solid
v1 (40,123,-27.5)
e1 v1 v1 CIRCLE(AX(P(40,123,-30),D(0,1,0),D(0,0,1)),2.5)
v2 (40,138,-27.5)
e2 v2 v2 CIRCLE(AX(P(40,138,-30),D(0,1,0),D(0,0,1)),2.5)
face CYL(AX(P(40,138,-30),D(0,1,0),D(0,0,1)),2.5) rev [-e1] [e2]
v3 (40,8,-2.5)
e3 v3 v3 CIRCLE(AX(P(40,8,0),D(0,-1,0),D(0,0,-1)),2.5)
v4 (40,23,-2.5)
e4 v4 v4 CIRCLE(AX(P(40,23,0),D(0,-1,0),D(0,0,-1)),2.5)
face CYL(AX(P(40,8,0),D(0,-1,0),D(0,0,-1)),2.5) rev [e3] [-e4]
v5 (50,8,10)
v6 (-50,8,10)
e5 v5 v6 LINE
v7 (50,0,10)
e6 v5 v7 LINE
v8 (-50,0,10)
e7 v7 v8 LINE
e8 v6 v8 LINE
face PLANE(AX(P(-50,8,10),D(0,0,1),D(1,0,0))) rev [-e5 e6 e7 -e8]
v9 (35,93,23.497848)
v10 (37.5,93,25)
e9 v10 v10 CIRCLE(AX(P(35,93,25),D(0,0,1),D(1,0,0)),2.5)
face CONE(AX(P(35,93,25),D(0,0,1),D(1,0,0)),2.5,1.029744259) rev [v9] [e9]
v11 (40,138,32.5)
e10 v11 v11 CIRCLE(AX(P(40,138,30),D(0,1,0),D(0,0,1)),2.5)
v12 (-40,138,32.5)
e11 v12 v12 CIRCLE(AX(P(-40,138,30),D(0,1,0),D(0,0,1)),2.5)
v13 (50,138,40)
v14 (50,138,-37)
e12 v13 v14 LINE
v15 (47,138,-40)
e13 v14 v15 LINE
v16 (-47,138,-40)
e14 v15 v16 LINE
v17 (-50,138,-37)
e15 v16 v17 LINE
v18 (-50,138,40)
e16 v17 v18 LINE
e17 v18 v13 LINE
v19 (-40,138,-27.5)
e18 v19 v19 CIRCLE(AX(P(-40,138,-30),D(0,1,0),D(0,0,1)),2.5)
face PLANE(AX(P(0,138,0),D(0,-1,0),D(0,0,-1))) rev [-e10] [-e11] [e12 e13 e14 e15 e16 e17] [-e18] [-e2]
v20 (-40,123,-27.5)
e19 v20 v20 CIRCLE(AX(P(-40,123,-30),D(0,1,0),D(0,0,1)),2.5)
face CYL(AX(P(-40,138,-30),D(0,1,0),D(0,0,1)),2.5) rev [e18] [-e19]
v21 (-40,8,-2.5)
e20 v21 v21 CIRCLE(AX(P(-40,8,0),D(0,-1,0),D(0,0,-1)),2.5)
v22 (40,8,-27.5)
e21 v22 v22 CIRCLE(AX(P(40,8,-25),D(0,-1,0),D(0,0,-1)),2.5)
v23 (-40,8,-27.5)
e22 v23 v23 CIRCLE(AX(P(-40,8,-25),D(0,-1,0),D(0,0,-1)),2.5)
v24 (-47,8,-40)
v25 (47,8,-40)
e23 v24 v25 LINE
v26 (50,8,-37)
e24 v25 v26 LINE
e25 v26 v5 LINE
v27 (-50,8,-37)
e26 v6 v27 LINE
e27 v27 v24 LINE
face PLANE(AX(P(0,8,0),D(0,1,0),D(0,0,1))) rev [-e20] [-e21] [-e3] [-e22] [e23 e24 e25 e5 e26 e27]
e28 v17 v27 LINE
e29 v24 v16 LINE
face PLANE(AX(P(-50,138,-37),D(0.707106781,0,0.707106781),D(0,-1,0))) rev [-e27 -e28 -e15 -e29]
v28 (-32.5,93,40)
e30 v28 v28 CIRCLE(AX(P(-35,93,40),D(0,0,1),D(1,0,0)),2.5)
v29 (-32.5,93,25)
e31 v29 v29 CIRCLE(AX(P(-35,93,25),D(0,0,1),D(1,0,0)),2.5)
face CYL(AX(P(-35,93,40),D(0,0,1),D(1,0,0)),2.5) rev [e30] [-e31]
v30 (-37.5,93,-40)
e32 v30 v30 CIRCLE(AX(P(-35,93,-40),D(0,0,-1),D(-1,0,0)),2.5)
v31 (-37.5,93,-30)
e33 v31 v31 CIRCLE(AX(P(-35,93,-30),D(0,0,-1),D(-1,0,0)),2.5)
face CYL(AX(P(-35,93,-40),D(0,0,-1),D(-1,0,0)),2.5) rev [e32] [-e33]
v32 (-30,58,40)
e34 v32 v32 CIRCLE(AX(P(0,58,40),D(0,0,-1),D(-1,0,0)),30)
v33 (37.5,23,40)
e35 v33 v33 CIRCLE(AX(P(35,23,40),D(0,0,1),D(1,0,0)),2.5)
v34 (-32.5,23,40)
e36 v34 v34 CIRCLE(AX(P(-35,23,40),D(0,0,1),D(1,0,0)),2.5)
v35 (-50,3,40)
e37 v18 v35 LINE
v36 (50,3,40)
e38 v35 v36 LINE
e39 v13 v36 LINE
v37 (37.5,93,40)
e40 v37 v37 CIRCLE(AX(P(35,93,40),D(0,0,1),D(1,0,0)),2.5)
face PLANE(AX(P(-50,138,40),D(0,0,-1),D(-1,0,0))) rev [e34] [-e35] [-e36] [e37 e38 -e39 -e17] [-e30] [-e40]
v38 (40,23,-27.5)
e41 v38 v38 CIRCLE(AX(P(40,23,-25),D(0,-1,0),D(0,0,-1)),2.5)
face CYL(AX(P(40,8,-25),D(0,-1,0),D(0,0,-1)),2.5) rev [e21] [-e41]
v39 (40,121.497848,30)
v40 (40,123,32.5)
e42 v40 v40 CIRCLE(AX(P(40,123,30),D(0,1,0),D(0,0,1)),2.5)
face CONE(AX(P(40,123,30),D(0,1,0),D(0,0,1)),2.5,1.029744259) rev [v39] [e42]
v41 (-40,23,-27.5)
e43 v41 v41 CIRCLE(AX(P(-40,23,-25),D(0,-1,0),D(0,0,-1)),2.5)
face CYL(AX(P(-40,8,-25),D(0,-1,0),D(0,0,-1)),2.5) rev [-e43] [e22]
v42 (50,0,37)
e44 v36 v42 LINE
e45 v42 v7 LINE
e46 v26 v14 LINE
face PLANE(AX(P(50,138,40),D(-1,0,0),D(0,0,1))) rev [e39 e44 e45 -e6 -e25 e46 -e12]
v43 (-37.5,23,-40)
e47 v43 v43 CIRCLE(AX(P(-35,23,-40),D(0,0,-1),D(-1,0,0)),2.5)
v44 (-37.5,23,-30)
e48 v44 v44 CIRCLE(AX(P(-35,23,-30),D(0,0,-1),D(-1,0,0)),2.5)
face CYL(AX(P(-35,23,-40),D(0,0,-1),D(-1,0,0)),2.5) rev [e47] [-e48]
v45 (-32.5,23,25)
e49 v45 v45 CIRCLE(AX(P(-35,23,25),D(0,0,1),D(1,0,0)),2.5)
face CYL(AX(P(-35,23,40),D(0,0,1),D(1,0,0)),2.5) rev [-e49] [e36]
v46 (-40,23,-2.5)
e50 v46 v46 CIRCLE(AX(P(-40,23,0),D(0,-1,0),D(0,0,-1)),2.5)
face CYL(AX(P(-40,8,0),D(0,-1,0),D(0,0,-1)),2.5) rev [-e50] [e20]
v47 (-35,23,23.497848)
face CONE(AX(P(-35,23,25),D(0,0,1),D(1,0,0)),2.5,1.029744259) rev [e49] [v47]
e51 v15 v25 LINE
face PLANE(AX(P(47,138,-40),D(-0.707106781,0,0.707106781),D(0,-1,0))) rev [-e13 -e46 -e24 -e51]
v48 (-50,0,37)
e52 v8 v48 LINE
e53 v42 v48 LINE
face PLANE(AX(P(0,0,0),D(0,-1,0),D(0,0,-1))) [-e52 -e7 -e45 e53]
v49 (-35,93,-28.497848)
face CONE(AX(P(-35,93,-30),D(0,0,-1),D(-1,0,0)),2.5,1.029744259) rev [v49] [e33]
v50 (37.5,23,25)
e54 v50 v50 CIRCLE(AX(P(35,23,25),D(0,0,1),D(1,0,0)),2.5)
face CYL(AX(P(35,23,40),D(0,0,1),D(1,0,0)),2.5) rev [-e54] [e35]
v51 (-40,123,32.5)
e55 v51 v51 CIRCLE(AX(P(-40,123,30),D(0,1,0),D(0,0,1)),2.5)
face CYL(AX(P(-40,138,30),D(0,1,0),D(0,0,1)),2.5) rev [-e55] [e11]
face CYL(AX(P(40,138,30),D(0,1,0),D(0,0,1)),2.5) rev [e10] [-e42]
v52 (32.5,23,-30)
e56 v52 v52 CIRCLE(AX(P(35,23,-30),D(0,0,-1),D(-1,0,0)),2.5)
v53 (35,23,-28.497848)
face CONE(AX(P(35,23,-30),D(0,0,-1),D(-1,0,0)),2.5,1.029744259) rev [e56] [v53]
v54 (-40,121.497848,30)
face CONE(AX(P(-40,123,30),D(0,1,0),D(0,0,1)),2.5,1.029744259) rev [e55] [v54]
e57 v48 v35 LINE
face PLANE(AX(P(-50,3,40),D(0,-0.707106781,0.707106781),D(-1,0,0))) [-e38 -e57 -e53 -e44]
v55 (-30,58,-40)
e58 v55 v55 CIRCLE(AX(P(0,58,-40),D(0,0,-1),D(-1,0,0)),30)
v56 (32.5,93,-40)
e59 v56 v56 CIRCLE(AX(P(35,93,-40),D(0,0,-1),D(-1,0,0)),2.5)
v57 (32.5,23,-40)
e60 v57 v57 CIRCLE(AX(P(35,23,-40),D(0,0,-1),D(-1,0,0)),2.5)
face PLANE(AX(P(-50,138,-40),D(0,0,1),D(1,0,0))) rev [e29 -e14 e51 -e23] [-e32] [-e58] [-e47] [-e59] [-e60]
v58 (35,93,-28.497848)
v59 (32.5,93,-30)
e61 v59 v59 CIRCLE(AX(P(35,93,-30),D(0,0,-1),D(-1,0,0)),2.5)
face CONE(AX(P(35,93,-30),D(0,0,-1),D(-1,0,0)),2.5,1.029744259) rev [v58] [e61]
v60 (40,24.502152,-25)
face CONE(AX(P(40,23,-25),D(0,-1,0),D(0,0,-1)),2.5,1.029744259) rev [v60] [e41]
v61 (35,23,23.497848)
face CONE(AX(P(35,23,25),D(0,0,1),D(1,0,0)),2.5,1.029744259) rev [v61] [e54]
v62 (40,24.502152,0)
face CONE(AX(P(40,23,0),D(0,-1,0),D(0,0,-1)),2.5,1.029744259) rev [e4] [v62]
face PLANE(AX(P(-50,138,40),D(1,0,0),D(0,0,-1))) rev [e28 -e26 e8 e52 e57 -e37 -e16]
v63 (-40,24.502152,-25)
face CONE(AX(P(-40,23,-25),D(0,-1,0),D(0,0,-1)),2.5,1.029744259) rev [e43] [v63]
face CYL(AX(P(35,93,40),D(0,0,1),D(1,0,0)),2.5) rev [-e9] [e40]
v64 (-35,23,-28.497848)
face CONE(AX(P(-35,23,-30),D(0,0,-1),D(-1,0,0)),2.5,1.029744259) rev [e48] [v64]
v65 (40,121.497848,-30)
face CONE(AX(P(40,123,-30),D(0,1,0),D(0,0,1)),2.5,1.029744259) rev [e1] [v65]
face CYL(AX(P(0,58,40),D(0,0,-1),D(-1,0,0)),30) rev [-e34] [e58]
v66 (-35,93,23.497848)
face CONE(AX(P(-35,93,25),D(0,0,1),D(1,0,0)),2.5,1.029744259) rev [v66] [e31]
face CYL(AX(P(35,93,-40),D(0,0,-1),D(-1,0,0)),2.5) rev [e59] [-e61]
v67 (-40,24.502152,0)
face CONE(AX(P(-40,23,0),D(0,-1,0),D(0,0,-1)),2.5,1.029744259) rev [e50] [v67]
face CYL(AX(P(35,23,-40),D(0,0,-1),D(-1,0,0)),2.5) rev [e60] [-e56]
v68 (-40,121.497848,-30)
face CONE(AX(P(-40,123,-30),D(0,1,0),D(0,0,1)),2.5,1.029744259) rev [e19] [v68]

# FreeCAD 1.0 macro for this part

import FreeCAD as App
import Part
import Sketcher
Q = App.Units.Quantity


def edges_at(feature, points):
    """Names of the edges that pass closest to the given points."""
    edges = feature.Shape.Edges
    near = lambda p: min(range(len(edges)), key=lambda i: edges[i].distToShape(Part.Vertex(*p))[0])
    return sorted({f"Edge{near(p) + 1}" for p in points})


def add_polygon(sketch, points):
    """Adds a closed chain of lines whose ends are joined by coincident constraints."""
    first, n = sketch.GeometryCount, len(points)
    for a, b in zip(points, points[1:] + points[:1]):
        sketch.addGeometry(Part.LineSegment(App.Vector(*a, 0), App.Vector(*b, 0)), False)
    for i in range(n):
        sketch.addConstraint(Sketcher.Constraint("Coincident", first + i, 2, first + (i + 1) % n, 1))

doc = App.newDocument("Part")
params = doc.addObject("Spreadsheet::Sheet", "Params")
for row, (alias, value) in enumerate([
    ("sketch1_width", "100 mm"),
    ("sketch1_height", "80 mm"),
    ("pad1_length", "138 mm"),
    ("sketch2_width", "100 mm"),
    ("sketch2_height", "50 mm"),
    ("pocket1_length", "8 mm"),
    ("sketch3_diameter", "5 mm"),
    ("hole_diameter", "5 mm"),
    ("hole_depth", "15 mm"),
    ("sketch4_diameter", "60 mm"),
    ("sketch5_diameter", "5 mm"),
    ("hole2_diameter", "5 mm"),
    ("hole2_depth", "15 mm"),
    ("sketch6_diameter", "5 mm"),
    ("hole3_diameter", "5 mm"),
    ("hole3_depth", "10 mm"),
    ("sketch7_diameter", "5 mm"),
    ("hole4_diameter", "5 mm"),
    ("hole4_depth", "15 mm"),
    ("chamfer_size", "3 mm"),
], start=1):
    params.set(f"A{row}", alias)
    params.set(f"B{row}", "=" + value)
    params.setAlias(f"B{row}", alias)

body = doc.addObject("PartDesign::Body", "Body")

sketch1 = body.newObject("Sketcher::SketchObject", "Sketch")
sketch1.AttachmentSupport = (doc.getObject("XZ_Plane"), [""])
sketch1.MapMode = "FlatFace"
add_polygon(sketch1, [(-50, -40), (-50, 40), (50, 40), (50, -40)])
sketch1.addConstraint([
    Sketcher.Constraint("Vertical", 0),
    Sketcher.Constraint("Horizontal", 1),
    Sketcher.Constraint("Vertical", 2),
    Sketcher.Constraint("Horizontal", 3),
    Sketcher.Constraint("Symmetric", 0, 2, 2, 2, -1, 1),
    Sketcher.Constraint("DistanceX", 1, 1, 1, 2, Q("100 mm")),
    Sketcher.Constraint("DistanceY", 0, 1, 0, 2, Q("80 mm")),
])
sketch1.setExpression("Constraints[9]", "Params.sketch1_width")
sketch1.setExpression("Constraints[10]", "Params.sketch1_height")
pad1 = body.newObject("PartDesign::Pad", "Pad")
pad1.Profile = sketch1
pad1.setExpression("Length", "Params.pad1_length")
pad1.Reversed = True

sketch2 = body.newObject("Sketcher::SketchObject", "Sketch001")
sketch2.AttachmentSupport = (doc.getObject("XZ_Plane"), [""])
sketch2.MapMode = "FlatFace"
add_polygon(sketch2, [(-50, 10), (-50, -40), (50, -40), (50, 10)])
sketch2.addConstraint([
    Sketcher.Constraint("Vertical", 0),
    Sketcher.Constraint("Horizontal", 1),
    Sketcher.Constraint("Vertical", 2),
    Sketcher.Constraint("Horizontal", 3),
    Sketcher.Constraint("DistanceX", 1, 1, 1, 2, Q("100 mm")),
    Sketcher.Constraint("DistanceY", 0, 2, 0, 1, Q("50 mm")),
    Sketcher.Constraint("DistanceX", 0, 2, -1, 1, Q("50 mm")),
    Sketcher.Constraint("DistanceY", 0, 2, -1, 1, Q("40 mm")),
])
sketch2.setExpression("Constraints[8]", "Params.sketch2_width")
sketch2.setExpression("Constraints[9]", "Params.sketch2_height")
pocket1 = body.newObject("PartDesign::Pocket", "Pocket")
pocket1.Profile = sketch2
pocket1.setExpression("Length", "Params.pocket1_length")

sketch3 = body.newObject("Sketcher::SketchObject", "Sketch002")
sketch3.AttachmentSupport = (doc.getObject("XZ_Plane"), [""])
sketch3.MapMode = "FlatFace"
sketch3.AttachmentOffset = App.Placement(App.Vector(0, 0, -8), App.Rotation())
sketch3.addGeometry([
    Part.Circle(App.Vector(40, -25, 0), App.Vector(0, 0, 1), 2.5),
    Part.Circle(App.Vector(40, 0, 0), App.Vector(0, 0, 1), 2.5),
    Part.Circle(App.Vector(-40, 0, 0), App.Vector(0, 0, 1), 2.5),
    Part.Circle(App.Vector(-40, -25, 0), App.Vector(0, 0, 1), 2.5),
], False)
sketch3.addConstraint([
    Sketcher.Constraint("Equal", 0, 1),
    Sketcher.Constraint("Equal", 1, 2),
    Sketcher.Constraint("Equal", 2, 3),
    Sketcher.Constraint("Symmetric", 1, 3, 2, 3, -1, 1),
    Sketcher.Constraint("Symmetric", 0, 3, 3, 3, -2),
    Sketcher.Constraint("PointOnObject", 1, 3, -1),
    Sketcher.Constraint("Vertical", 0, 3, 1, 3),
    Sketcher.Constraint("Diameter", 0, Q("5 mm")),
    Sketcher.Constraint("DistanceX", -1, 1, 0, 3, Q("40 mm")),
    Sketcher.Constraint("DistanceY", 0, 3, -1, 1, Q("25 mm")),
])
sketch3.setExpression("Constraints[7]", "Params.sketch3_diameter")
doc.recompute()
hole = body.newObject("PartDesign::Hole", "Hole")
hole.Profile = sketch3
hole.ThreadType = "None"
hole.setExpression("Diameter", "Params.hole_diameter")
hole.DepthType = "Dimension"
hole.setExpression("Depth", "Params.hole_depth")
hole.DrillPoint = "Angled"
hole.DrillPointAngle = 118

sketch4 = body.newObject("Sketcher::SketchObject", "Sketch003")
sketch4.AttachmentSupport = (doc.getObject("XY_Plane"), [""])
sketch4.MapMode = "FlatFace"
sketch4.AttachmentOffset = App.Placement(App.Vector(0, 0, -40), App.Rotation())
sketch4.addGeometry(Part.Circle(App.Vector(0, 58, 0), App.Vector(0, 0, 1), 30), False)
sketch4.addConstraint([
    Sketcher.Constraint("PointOnObject", 0, 3, -2),
    Sketcher.Constraint("Diameter", 0, Q("60 mm")),
    Sketcher.Constraint("DistanceY", -1, 1, 0, 3, Q("58 mm")),
])
sketch4.setExpression("Constraints[1]", "Params.sketch4_diameter")
pocket2 = body.newObject("PartDesign::Pocket", "Pocket001")
pocket2.Profile = sketch4
pocket2.Type = "ThroughAll"
pocket2.Reversed = True

sketch5 = body.newObject("Sketcher::SketchObject", "Sketch004")
sketch5.AttachmentSupport = (doc.getObject("XZ_Plane"), [""])
sketch5.MapMode = "FlatFace"
sketch5.AttachmentOffset = App.Placement(App.Vector(0, 0, -138), App.Rotation())
sketch5.addGeometry([
    Part.Circle(App.Vector(-40, -30, 0), App.Vector(0, 0, 1), 2.5),
    Part.Circle(App.Vector(-40, 30, 0), App.Vector(0, 0, 1), 2.5),
    Part.Circle(App.Vector(40, 30, 0), App.Vector(0, 0, 1), 2.5),
    Part.Circle(App.Vector(40, -30, 0), App.Vector(0, 0, 1), 2.5),
], False)
sketch5.addConstraint([
    Sketcher.Constraint("Equal", 0, 1),
    Sketcher.Constraint("Equal", 1, 2),
    Sketcher.Constraint("Equal", 2, 3),
    Sketcher.Constraint("Symmetric", 0, 3, 2, 3, -1, 1),
    Sketcher.Constraint("Symmetric", 1, 3, 3, 3, -1, 1),
    Sketcher.Constraint("Symmetric", 1, 3, 2, 3, -2),
    Sketcher.Constraint("Diameter", 0, Q("5 mm")),
    Sketcher.Constraint("DistanceX", 0, 3, -1, 1, Q("40 mm")),
    Sketcher.Constraint("DistanceY", 0, 3, -1, 1, Q("30 mm")),
])
sketch5.setExpression("Constraints[6]", "Params.sketch5_diameter")
doc.recompute()
hole2 = body.newObject("PartDesign::Hole", "Hole001")
hole2.Profile = sketch5
hole2.ThreadType = "None"
hole2.setExpression("Diameter", "Params.hole2_diameter")
hole2.DepthType = "Dimension"
hole2.setExpression("Depth", "Params.hole2_depth")
hole2.DrillPoint = "Angled"
hole2.DrillPointAngle = 118
hole2.Reversed = True

sketch6 = body.newObject("Sketcher::SketchObject", "Sketch005")
sketch6.AttachmentSupport = (doc.getObject("XY_Plane"), [""])
sketch6.MapMode = "FlatFace"
sketch6.AttachmentOffset = App.Placement(App.Vector(0, 0, -40), App.Rotation())
sketch6.addGeometry([
    Part.Circle(App.Vector(35, 23, 0), App.Vector(0, 0, 1), 2.5),
    Part.Circle(App.Vector(35, 93, 0), App.Vector(0, 0, 1), 2.5),
    Part.Circle(App.Vector(-35, 93, 0), App.Vector(0, 0, 1), 2.5),
    Part.Circle(App.Vector(-35, 23, 0), App.Vector(0, 0, 1), 2.5),
], False)
sketch6.addConstraint([
    Sketcher.Constraint("Equal", 0, 1),
    Sketcher.Constraint("Equal", 1, 2),
    Sketcher.Constraint("Equal", 2, 3),
    Sketcher.Constraint("Symmetric", 1, 3, 2, 3, -2),
    Sketcher.Constraint("Symmetric", 0, 3, 3, 3, -2),
    Sketcher.Constraint("Vertical", 0, 3, 1, 3),
    Sketcher.Constraint("Diameter", 0, Q("5 mm")),
    Sketcher.Constraint("DistanceX", -1, 1, 0, 3, Q("35 mm")),
    Sketcher.Constraint("DistanceY", -1, 1, 0, 3, Q("23 mm")),
    Sketcher.Constraint("DistanceY", -1, 1, 1, 3, Q("93 mm")),
])
sketch6.setExpression("Constraints[6]", "Params.sketch6_diameter")
doc.recompute()
hole3 = body.newObject("PartDesign::Hole", "Hole002")
hole3.Profile = sketch6
hole3.ThreadType = "None"
hole3.setExpression("Diameter", "Params.hole3_diameter")
hole3.DepthType = "Dimension"
hole3.setExpression("Depth", "Params.hole3_depth")
hole3.DrillPoint = "Angled"
hole3.DrillPointAngle = 118
hole3.Reversed = True

sketch7 = body.newObject("Sketcher::SketchObject", "Sketch006")
sketch7.AttachmentSupport = (doc.getObject("XY_Plane"), [""])
sketch7.MapMode = "FlatFace"
sketch7.AttachmentOffset = App.Placement(App.Vector(0, 0, 40), App.Rotation())
sketch7.addGeometry([
    Part.Circle(App.Vector(-35, 93, 0), App.Vector(0, 0, 1), 2.5),
    Part.Circle(App.Vector(35, 93, 0), App.Vector(0, 0, 1), 2.5),
    Part.Circle(App.Vector(35, 23, 0), App.Vector(0, 0, 1), 2.5),
    Part.Circle(App.Vector(-35, 23, 0), App.Vector(0, 0, 1), 2.5),
], False)
sketch7.addConstraint([
    Sketcher.Constraint("Equal", 0, 1),
    Sketcher.Constraint("Equal", 1, 2),
    Sketcher.Constraint("Equal", 2, 3),
    Sketcher.Constraint("Symmetric", 0, 3, 1, 3, -2),
    Sketcher.Constraint("Symmetric", 2, 3, 3, 3, -2),
    Sketcher.Constraint("Vertical", 1, 3, 2, 3),
    Sketcher.Constraint("Diameter", 0, Q("5 mm")),
    Sketcher.Constraint("DistanceX", 0, 3, -1, 1, Q("35 mm")),
    Sketcher.Constraint("DistanceY", -1, 1, 0, 3, Q("93 mm")),
    Sketcher.Constraint("DistanceY", -1, 1, 2, 3, Q("23 mm")),
])
sketch7.setExpression("Constraints[6]", "Params.sketch7_diameter")
doc.recompute()
hole4 = body.newObject("PartDesign::Hole", "Hole003")
hole4.Profile = sketch7
hole4.ThreadType = "None"
hole4.setExpression("Diameter", "Params.hole4_diameter")
hole4.DepthType = "Dimension"
hole4.setExpression("Depth", "Params.hole4_depth")
hole4.DrillPoint = "Angled"
hole4.DrillPointAngle = 118
doc.recompute()

chamfer = body.newObject("PartDesign::Chamfer", "Chamfer")
chamfer.Base = (hole4, edges_at(hole4, [(0, 0, 40), (-50, 73, -40), (50, 73, -40)]))
chamfer.setExpression("Size", "Params.chamfer_size")

doc.recompute()
